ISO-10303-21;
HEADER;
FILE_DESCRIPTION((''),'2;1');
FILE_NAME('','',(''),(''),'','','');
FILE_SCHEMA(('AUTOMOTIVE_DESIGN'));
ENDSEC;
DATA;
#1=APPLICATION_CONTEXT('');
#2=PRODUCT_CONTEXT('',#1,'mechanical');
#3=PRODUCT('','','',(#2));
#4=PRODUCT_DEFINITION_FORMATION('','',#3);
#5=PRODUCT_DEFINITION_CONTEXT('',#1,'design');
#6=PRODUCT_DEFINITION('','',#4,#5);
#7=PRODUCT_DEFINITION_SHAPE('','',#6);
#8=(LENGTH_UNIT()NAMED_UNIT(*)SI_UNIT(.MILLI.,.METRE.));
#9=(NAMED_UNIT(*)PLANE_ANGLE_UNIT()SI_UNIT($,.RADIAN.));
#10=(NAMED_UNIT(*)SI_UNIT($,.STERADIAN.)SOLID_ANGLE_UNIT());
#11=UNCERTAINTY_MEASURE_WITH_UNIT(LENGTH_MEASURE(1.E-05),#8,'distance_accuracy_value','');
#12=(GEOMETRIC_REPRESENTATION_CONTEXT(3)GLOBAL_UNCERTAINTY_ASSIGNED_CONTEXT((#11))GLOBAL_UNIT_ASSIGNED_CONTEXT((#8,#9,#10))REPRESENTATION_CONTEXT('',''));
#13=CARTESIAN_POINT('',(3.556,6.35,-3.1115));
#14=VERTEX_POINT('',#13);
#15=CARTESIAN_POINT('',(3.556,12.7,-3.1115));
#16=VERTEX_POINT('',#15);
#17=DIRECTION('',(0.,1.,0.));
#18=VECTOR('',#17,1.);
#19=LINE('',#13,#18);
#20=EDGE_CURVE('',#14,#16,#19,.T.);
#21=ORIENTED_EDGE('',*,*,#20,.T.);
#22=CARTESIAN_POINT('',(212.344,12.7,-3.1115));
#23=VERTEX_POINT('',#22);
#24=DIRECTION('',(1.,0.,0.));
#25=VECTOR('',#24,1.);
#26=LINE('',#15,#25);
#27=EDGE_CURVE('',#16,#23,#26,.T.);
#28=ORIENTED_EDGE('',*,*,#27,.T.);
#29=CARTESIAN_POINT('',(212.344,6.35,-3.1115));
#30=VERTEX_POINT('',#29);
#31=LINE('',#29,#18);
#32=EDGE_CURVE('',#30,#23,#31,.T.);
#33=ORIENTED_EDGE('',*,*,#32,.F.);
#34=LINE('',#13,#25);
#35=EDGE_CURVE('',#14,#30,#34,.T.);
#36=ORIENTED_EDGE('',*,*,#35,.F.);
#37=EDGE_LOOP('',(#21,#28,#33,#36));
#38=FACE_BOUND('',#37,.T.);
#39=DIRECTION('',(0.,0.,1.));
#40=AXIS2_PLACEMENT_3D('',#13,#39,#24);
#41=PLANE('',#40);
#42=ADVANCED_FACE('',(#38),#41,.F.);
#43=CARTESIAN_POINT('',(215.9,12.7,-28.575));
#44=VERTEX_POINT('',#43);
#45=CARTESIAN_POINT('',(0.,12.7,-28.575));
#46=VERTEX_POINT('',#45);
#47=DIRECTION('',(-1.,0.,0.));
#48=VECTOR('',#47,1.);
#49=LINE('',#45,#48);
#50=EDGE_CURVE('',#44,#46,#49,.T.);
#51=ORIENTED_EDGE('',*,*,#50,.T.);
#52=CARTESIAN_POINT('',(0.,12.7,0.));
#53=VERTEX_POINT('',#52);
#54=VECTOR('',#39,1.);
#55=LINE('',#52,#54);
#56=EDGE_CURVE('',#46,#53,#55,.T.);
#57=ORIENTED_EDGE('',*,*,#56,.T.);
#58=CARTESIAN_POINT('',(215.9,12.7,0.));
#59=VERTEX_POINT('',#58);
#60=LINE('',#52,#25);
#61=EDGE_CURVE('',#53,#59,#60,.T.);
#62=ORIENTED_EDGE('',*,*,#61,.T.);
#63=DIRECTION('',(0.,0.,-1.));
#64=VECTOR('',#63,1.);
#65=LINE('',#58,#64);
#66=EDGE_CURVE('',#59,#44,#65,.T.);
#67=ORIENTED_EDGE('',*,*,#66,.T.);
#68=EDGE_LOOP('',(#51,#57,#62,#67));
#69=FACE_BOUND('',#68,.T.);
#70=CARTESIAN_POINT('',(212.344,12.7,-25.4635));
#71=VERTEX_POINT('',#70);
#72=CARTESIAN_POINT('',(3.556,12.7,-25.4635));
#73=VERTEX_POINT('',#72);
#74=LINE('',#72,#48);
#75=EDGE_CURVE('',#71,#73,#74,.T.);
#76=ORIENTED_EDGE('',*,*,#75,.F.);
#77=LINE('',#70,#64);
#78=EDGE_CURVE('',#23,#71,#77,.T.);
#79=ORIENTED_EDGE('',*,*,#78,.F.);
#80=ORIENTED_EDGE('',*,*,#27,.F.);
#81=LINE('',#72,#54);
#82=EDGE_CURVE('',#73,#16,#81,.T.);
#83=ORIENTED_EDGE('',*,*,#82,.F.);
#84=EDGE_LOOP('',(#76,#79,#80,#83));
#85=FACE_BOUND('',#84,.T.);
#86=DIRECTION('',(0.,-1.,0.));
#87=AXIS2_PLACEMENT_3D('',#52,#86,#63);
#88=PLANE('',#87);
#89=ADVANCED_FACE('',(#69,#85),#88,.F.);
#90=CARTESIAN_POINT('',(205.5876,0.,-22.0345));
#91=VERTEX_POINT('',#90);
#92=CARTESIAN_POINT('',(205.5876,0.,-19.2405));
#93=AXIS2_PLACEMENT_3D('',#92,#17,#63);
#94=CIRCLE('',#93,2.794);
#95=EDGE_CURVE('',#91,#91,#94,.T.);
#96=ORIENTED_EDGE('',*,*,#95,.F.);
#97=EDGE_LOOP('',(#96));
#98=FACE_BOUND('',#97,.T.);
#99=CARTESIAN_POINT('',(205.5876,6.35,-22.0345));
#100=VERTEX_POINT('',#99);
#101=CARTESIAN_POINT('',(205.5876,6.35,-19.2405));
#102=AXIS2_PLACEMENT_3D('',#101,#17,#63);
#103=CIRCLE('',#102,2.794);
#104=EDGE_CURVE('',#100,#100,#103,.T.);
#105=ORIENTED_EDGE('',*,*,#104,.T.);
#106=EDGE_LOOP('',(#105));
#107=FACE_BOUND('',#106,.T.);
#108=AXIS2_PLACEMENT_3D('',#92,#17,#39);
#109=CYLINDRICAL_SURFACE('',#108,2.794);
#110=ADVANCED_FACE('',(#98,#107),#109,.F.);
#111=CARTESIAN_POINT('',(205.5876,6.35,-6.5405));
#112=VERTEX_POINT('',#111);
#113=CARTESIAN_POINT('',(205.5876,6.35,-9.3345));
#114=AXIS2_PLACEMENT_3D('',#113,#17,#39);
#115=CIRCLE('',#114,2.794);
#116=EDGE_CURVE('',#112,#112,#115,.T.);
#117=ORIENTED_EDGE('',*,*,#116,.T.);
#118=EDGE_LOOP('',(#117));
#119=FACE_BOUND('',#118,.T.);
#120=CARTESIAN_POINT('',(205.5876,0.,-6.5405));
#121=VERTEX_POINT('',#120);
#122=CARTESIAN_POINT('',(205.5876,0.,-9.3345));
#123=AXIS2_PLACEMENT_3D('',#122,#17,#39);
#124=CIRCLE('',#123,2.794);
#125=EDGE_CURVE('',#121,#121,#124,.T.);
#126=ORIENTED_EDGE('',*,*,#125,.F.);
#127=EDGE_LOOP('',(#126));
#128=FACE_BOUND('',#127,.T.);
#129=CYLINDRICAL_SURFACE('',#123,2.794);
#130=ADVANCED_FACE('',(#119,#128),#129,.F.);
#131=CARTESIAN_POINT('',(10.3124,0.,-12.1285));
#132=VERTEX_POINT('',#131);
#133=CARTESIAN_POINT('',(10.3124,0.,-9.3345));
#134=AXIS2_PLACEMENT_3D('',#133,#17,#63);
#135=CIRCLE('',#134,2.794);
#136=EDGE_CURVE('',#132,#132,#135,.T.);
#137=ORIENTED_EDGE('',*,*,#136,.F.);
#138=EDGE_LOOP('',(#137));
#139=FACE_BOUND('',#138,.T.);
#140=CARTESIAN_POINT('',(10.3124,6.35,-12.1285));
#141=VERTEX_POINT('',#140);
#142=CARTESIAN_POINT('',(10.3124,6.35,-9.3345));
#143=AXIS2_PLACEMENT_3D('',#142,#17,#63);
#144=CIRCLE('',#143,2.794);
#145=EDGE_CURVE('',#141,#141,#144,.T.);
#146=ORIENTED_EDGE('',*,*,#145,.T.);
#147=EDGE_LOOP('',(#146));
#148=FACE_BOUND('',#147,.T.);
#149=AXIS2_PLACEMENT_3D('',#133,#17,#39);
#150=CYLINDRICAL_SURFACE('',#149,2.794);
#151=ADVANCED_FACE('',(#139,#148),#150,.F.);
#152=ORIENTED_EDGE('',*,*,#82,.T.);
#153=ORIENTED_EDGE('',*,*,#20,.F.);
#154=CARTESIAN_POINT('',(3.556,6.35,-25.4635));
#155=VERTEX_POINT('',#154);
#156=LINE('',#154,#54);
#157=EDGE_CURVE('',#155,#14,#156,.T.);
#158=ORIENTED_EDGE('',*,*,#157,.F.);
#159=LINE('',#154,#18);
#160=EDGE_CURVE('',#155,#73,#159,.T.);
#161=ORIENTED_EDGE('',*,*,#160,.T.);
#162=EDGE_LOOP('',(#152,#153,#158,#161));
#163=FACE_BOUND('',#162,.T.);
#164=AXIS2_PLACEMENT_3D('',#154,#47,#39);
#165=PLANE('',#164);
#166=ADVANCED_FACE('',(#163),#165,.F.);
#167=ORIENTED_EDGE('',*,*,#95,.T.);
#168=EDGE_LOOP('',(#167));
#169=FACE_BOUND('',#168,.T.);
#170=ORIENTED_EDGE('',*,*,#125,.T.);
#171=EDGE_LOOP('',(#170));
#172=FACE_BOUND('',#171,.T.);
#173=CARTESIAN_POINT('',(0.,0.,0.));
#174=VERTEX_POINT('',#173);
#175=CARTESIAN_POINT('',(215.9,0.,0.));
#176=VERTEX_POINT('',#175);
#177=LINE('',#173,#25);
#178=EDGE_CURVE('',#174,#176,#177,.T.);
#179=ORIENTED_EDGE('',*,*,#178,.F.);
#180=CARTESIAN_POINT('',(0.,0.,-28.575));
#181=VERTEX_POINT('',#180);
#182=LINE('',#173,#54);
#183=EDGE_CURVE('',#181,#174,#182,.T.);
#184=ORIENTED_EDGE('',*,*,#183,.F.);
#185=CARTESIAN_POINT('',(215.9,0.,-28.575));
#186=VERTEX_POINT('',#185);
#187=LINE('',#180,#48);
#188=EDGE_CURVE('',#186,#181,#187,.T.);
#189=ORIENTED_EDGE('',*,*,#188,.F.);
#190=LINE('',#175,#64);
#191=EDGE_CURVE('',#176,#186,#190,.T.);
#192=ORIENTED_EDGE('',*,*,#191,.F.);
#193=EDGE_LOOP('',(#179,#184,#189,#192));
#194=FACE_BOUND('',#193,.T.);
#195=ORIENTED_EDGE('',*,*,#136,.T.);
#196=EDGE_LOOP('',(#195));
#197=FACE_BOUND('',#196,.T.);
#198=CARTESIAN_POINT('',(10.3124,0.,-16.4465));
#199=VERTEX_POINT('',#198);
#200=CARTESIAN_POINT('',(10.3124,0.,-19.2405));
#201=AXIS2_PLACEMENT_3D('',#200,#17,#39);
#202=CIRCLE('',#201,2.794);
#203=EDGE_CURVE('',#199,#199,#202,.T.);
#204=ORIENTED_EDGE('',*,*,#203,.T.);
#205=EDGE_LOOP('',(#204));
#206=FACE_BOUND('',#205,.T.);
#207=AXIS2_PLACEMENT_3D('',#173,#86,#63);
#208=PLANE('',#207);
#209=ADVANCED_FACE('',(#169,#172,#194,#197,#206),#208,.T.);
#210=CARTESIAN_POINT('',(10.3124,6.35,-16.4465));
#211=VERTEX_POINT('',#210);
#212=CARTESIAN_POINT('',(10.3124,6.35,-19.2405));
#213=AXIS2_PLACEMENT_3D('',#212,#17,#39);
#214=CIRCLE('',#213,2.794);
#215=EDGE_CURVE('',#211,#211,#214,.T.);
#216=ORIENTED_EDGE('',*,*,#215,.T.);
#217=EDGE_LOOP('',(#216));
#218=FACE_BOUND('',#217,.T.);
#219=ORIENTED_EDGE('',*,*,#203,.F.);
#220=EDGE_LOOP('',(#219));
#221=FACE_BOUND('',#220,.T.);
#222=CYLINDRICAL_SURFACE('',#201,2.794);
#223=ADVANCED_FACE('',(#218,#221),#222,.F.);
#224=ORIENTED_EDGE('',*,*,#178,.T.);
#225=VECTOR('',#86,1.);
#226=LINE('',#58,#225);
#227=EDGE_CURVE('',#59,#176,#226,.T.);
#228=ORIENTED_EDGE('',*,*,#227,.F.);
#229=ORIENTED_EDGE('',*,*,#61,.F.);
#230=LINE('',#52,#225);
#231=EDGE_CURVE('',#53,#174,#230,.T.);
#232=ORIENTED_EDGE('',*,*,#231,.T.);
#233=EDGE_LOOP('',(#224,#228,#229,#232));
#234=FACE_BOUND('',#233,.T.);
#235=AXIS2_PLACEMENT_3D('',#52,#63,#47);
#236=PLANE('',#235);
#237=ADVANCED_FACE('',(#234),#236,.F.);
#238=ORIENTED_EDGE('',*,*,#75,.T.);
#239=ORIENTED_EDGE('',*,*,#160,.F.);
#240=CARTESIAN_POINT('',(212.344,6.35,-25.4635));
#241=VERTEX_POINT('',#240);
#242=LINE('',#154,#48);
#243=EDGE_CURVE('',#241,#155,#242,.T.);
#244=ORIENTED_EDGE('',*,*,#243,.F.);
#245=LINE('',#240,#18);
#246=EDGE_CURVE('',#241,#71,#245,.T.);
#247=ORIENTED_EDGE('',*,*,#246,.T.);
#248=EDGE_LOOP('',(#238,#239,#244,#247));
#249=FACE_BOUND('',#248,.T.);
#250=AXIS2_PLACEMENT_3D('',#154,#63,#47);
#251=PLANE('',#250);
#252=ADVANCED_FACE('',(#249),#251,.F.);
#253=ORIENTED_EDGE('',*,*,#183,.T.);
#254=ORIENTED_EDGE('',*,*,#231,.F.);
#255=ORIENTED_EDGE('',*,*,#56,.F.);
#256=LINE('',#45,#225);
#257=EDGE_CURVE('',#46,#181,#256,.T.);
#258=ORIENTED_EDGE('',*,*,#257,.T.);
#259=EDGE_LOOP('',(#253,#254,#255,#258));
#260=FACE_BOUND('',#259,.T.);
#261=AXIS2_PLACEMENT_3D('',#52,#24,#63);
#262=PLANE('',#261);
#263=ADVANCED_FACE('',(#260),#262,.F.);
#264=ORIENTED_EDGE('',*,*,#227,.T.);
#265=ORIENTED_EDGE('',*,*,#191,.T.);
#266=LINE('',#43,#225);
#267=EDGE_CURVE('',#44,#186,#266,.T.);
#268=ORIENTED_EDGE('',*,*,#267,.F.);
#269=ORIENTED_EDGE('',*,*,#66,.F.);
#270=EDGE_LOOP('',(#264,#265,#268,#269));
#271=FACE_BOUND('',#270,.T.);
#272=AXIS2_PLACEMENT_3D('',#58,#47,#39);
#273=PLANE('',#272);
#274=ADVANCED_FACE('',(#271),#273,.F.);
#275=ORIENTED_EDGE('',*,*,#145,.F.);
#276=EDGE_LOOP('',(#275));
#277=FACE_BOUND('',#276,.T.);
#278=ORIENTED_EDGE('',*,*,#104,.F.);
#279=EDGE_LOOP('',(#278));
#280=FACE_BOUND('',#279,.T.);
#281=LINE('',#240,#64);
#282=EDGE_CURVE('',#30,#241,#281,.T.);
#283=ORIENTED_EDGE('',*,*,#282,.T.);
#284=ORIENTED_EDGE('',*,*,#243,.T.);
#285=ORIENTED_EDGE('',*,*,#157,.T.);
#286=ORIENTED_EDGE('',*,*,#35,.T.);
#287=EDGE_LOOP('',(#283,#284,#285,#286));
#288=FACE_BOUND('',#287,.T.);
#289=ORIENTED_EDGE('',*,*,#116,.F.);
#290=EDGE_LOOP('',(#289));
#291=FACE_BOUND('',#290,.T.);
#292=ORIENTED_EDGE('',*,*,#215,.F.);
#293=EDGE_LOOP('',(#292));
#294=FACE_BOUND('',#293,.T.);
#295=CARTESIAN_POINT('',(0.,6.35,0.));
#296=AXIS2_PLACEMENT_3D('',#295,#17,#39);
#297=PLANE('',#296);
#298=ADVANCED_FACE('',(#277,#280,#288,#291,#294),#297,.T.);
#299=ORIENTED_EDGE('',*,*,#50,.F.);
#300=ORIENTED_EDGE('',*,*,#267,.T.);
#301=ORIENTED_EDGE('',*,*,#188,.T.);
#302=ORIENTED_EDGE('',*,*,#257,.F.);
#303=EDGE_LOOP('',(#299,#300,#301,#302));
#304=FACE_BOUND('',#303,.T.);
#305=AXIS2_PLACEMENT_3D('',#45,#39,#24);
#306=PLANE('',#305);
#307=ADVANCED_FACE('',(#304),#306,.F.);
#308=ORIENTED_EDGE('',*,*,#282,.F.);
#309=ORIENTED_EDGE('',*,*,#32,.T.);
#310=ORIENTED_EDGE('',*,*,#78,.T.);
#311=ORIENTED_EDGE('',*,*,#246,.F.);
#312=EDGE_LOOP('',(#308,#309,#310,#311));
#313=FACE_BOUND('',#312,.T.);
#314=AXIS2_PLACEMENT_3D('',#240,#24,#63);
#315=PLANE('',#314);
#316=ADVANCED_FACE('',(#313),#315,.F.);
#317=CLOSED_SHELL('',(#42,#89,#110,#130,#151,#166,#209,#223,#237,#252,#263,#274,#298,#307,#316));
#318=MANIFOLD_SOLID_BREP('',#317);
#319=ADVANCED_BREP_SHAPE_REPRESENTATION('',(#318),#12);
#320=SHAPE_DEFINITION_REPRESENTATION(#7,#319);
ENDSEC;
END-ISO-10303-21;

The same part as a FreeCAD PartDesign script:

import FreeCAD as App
import Part
import Sketcher
from FreeCAD import Vector
Q = App.Units.Quantity


def add_polygon(sketch, points):
    """Adds a closed chain of lines whose ends are joined by coincident constraints."""
    first, n = sketch.GeometryCount, len(points)
    for a, b in zip(points, points[1:] + points[:1]):
        sketch.addGeometry(Part.LineSegment(App.Vector(*a, 0), App.Vector(*b, 0)), False)
    for i in range(n):
        sketch.addConstraint(Sketcher.Constraint("Coincident", first + i, 2, first + (i + 1) % n, 1))

doc = App.newDocument("Part")
body = doc.addObject("PartDesign::Body", "Body")

sketch1 = body.newObject("Sketcher::SketchObject", "Sketch")
sketch1.AttachmentSupport = (doc.getObject("XZ_Plane"), [""])
sketch1.MapMode = "FlatFace"
add_polygon(sketch1, [(0, -28.575), (0, 0), (215.9, 0), (215.9, -28.575)])
sketch1.addConstraint(Sketcher.Constraint("Vertical", 0))
sketch1.addConstraint(Sketcher.Constraint("Horizontal", 1))
sketch1.addConstraint(Sketcher.Constraint("Vertical", 2))
sketch1.addConstraint(Sketcher.Constraint("Horizontal", 3))
sketch1.addConstraint(Sketcher.Constraint("Coincident", 0, 2, -1, 1))
sketch1.addConstraint(Sketcher.Constraint("DistanceX", 1, 1, 1, 2, Q("8.5 in")))
sketch1.addConstraint(Sketcher.Constraint("DistanceY", 0, 1, 0, 2, Q("1.125 in")))
pad1 = body.newObject("PartDesign::Pad", "Pad")
pad1.Profile = sketch1
pad1.Length = Q("0.5 in")
pad1.Reversed = True

sketch2 = body.newObject("Sketcher::SketchObject", "Sketch001")
sketch2.AttachmentSupport = (doc.getObject("XZ_Plane"), [""])
sketch2.MapMode = "FlatFace"
sketch2.AttachmentOffset = App.Placement(Vector(0, 0, -0.5 * 25.4), App.Rotation())
add_polygon(sketch2, [(3.556, -25.4635), (3.556, -3.1115), (212.344, -3.1115), (212.344, -25.4635)])
sketch2.addConstraint(Sketcher.Constraint("Vertical", 0))
sketch2.addConstraint(Sketcher.Constraint("Horizontal", 1))
sketch2.addConstraint(Sketcher.Constraint("Vertical", 2))
sketch2.addConstraint(Sketcher.Constraint("Horizontal", 3))
sketch2.addConstraint(Sketcher.Constraint("DistanceX", 1, 1, 1, 2, Q("8.22 in")))
sketch2.addConstraint(Sketcher.Constraint("DistanceY", 0, 1, 0, 2, Q("0.88 in")))
sketch2.addConstraint(Sketcher.Constraint("DistanceX", -1, 1, 0, 2, Q("0.14 in")))
sketch2.addConstraint(Sketcher.Constraint("DistanceY", 0, 2, -1, 1, Q("0.1225 in")))
pocket1 = body.newObject("PartDesign::Pocket", "Pocket")
pocket1.Profile = sketch2
pocket1.Length = Q("0.25 in")
pocket1.Reversed = True

sketch3 = body.newObject("Sketcher::SketchObject", "Sketch002")
sketch3.AttachmentSupport = (doc.getObject("XZ_Plane"), [""])
sketch3.MapMode = "FlatFace"
sketch3.AttachmentOffset = App.Placement(Vector(0, 0, -0.25 * 25.4), App.Rotation())
sketch3.addGeometry(Part.Circle(Vector(10.3124, -19.2405, 0), Vector(0, 0, 1), 2.794), False)
sketch3.addGeometry(Part.Circle(Vector(10.3124, -9.3345, 0), Vector(0, 0, 1), 2.794), False)
sketch3.addGeometry(Part.Circle(Vector(205.5876, -9.3345, 0), Vector(0, 0, 1), 2.794), False)
sketch3.addGeometry(Part.Circle(Vector(205.5876, -19.2405, 0), Vector(0, 0, 1), 2.794), False)
sketch3.addConstraint(Sketcher.Constraint("Equal", 0, 1))
sketch3.addConstraint(Sketcher.Constraint("Equal", 1, 2))
sketch3.addConstraint(Sketcher.Constraint("Equal", 2, 3))
sketch3.addConstraint(Sketcher.Constraint("Horizontal", 1, 3, 2, 3))
sketch3.addConstraint(Sketcher.Constraint("Horizontal", 0, 3, 3, 3))
sketch3.addConstraint(Sketcher.Constraint("Vertical", 0, 3, 1, 3))
sketch3.addConstraint(Sketcher.Constraint("Vertical", 2, 3, 3, 3))
sketch3.addConstraint(Sketcher.Constraint("Diameter", 0, Q("0.22 in")))
sketch3.addConstraint(Sketcher.Constraint("DistanceY", 0, 3, 1, 3, Q("0.39 in")))
sketch3.addConstraint(Sketcher.Constraint("DistanceX", -1, 1, 0, 3, Q("0.406 in")))
sketch3.addConstraint(Sketcher.Constraint("DistanceX", -1, 1, 2, 3, Q("8.094 in")))
sketch3.addConstraint(Sketcher.Constraint("DistanceY", 0, 3, -1, 1, Q("0.7575 in")))
pocket2 = body.newObject("PartDesign::Pocket", "Pocket001")
pocket2.Profile = sketch3
pocket2.Type = "ThroughAll"
pocket2.Reversed = True

doc.recompute()
